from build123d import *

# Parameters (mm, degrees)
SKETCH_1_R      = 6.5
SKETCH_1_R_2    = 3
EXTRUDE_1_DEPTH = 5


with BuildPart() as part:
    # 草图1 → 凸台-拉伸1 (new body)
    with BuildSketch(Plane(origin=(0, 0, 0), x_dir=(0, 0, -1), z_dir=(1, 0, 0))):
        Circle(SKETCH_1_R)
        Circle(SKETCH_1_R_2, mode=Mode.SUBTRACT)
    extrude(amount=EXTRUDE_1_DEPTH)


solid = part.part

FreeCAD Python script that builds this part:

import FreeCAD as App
import Part
import Sketcher

V = App.Vector

doc = App.newDocument("Part")
body = doc.addObject("PartDesign::Body", "Body")

sketch1 = body.newObject("Sketcher::SketchObject", "Sketch")
sketch1.AttachmentSupport = (doc.getObject("YZ_Plane"), [""])
sketch1.MapMode = "FlatFace"
sketch1.addGeometry(Part.Circle(V(0, 0, 0), V(0, 0, 1), 6.5), False)
sketch1.addGeometry(Part.Circle(V(0, 0, 0), V(0, 0, 1), 3), False)
sketch1.addConstraint(Sketcher.Constraint("Coincident", 0, 3, -1, 1))
sketch1.addConstraint(Sketcher.Constraint("Coincident", 1, 3, -1, 1))
sketch1.addConstraint(Sketcher.Constraint("Diameter", 0, 13.0))
sketch1.addConstraint(Sketcher.Constraint("Diameter", 1, 6.0))
pad1 = body.newObject("PartDesign::Pad", "Pad")
pad1.Profile = sketch1
pad1.Length = 5

doc.recompute()
